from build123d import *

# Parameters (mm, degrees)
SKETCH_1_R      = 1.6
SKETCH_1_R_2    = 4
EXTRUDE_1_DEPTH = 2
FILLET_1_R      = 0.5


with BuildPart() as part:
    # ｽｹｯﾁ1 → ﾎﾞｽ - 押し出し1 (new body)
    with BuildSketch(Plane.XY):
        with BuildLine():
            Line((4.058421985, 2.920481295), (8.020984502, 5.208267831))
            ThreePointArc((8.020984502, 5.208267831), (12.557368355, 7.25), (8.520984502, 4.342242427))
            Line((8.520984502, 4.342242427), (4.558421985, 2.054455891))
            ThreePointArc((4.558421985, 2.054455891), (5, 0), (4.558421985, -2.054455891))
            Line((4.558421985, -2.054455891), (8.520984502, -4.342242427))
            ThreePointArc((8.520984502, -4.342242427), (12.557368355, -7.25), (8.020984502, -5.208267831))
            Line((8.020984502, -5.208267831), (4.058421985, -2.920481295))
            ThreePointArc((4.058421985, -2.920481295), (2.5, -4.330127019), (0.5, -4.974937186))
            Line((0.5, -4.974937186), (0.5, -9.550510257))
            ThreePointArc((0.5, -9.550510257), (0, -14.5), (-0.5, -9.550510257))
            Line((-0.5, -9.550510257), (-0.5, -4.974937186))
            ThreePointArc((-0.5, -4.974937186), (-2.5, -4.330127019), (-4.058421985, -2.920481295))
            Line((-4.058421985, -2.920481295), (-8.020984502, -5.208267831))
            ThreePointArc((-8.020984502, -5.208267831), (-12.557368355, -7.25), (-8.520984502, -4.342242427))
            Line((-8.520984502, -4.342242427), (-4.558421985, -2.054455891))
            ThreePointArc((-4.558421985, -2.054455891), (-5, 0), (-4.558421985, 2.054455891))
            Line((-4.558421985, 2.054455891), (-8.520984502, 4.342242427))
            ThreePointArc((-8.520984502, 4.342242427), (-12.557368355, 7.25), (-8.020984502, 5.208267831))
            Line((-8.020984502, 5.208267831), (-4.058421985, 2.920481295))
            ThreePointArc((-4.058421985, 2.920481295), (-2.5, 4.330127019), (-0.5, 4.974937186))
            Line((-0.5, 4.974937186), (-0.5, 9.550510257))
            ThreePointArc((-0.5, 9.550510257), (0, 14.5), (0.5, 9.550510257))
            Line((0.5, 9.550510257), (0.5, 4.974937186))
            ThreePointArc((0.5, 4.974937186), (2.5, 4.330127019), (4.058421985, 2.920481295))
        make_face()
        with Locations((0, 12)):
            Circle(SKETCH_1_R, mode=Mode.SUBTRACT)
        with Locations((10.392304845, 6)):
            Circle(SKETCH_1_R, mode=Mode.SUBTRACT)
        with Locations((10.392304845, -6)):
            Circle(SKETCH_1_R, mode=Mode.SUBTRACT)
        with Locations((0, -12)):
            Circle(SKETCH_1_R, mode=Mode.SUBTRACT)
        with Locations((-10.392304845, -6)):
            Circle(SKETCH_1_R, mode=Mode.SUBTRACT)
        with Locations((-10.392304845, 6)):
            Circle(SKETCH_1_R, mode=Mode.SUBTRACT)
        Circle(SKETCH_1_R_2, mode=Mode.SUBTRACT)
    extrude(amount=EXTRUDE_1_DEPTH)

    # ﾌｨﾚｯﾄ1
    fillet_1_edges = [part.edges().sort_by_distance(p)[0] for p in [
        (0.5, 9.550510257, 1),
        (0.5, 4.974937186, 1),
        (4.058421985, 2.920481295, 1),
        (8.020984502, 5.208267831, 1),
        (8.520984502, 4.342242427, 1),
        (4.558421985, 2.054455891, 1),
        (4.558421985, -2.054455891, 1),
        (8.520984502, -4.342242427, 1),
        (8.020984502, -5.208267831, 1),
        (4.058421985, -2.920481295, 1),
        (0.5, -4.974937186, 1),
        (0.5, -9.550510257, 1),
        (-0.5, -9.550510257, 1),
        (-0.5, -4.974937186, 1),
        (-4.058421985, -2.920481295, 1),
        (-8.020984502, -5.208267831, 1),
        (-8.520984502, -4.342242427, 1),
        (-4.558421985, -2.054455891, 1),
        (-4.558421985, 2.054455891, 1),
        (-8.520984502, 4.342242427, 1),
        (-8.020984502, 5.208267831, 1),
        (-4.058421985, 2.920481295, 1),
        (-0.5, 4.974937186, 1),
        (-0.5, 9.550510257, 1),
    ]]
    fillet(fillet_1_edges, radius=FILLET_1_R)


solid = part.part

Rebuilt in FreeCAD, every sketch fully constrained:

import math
import FreeCAD as App
import Part
import Sketcher
Q = App.Units.Quantity


def edges_at(feature, points):
    """Names of the edges that pass closest to the given points."""
    edges = feature.Shape.Edges
    near = lambda p: min(range(len(edges)), key=lambda i: edges[i].distToShape(Part.Vertex(*p))[0])
    return sorted({f"Edge{near(p) + 1}" for p in points})

doc = App.newDocument("Part")
body = doc.addObject("PartDesign::Body", "Body")

sketch1 = doc.addObject("Sketcher::SketchObject", "Sketch")
body.addObject(sketch1)
sketch1.AttachmentSupport = (doc.XY_Plane, [""])
sketch1.MapMode = "FlatFace"
sketch1.addGeometry(Part.LineSegment(App.Vector(8.020985, 5.208268, 0), App.Vector(4.058422, 2.920481, 0)), False)
sketch1.addGeometry(Part.ArcOfCircle(Part.Circle(App.Vector(0, 0, 0), App.Vector(0, 0, 1), 5), math.radians(35.73917), math.radians(84.26083)), False)
sketch1.addGeometry(Part.LineSegment(App.Vector(0.5, 4.974937, 0), App.Vector(0.5, 9.55051, 0)), False)
sketch1.addGeometry(Part.ArcOfCircle(Part.Circle(App.Vector(0, 12, 0), App.Vector(0, 0, 1), 2.5), math.radians(-78.463041), math.radians(258.463041)), False)
sketch1.addGeometry(Part.LineSegment(App.Vector(-0.5, 9.55051, 0), App.Vector(-0.5, 4.974937, 0)), False)
sketch1.addGeometry(Part.ArcOfCircle(Part.Circle(App.Vector(0, 0, 0), App.Vector(0, 0, 1), 5), math.radians(95.73917), math.radians(144.26083)), False)
sketch1.addGeometry(Part.LineSegment(App.Vector(-4.058422, 2.920481, 0), App.Vector(-8.020985, 5.208268, 0)), False)
sketch1.addGeometry(Part.ArcOfCircle(Part.Circle(App.Vector(-10.392305, 6, 0), App.Vector(0, 0, 1), 2.5), math.radians(-18.463041), math.radians(318.463041)), False)
sketch1.addGeometry(Part.LineSegment(App.Vector(-8.520985, 4.342242, 0), App.Vector(-4.558422, 2.054456, 0)), False)
sketch1.addGeometry(Part.ArcOfCircle(Part.Circle(App.Vector(0, 0, 0), App.Vector(0, 0, 1), 5), math.radians(155.73917), math.radians(204.26083)), False)
sketch1.addGeometry(Part.LineSegment(App.Vector(-4.558422, -2.054456, 0), App.Vector(-8.520985, -4.342242, 0)), False)
sketch1.addGeometry(Part.ArcOfCircle(Part.Circle(App.Vector(-10.392305, -6, 0), App.Vector(0, 0, 1), 2.5), math.radians(41.536959), math.radians(378.463041)), False)
sketch1.addGeometry(Part.LineSegment(App.Vector(-8.020985, -5.208268, 0), App.Vector(-4.058422, -2.920481, 0)), False)
sketch1.addGeometry(Part.ArcOfCircle(Part.Circle(App.Vector(0, 0, 0), App.Vector(0, 0, 1), 5), math.radians(-144.26083), math.radians(-95.73917)), False)
sketch1.addGeometry(Part.LineSegment(App.Vector(-0.5, -4.974937, 0), App.Vector(-0.5, -9.55051, 0)), False)
sketch1.addGeometry(Part.ArcOfCircle(Part.Circle(App.Vector(0, -12, 0), App.Vector(0, 0, 1), 2.5), math.radians(101.536959), math.radians(438.463041)), False)
sketch1.addGeometry(Part.LineSegment(App.Vector(0.5, -9.55051, 0), App.Vector(0.5, -4.974937, 0)), False)
sketch1.addGeometry(Part.ArcOfCircle(Part.Circle(App.Vector(0, 0, 0), App.Vector(0, 0, 1), 5), math.radians(-84.26083), math.radians(-35.73917)), False)
sketch1.addGeometry(Part.LineSegment(App.Vector(4.058422, -2.920481, 0), App.Vector(8.020985, -5.208268, 0)), False)
sketch1.addGeometry(Part.ArcOfCircle(Part.Circle(App.Vector(10.392305, -6, 0), App.Vector(0, 0, 1), 2.5), math.radians(161.536959), math.radians(498.463041)), False)
sketch1.addGeometry(Part.LineSegment(App.Vector(8.520985, -4.342242, 0), App.Vector(4.558422, -2.054456, 0)), False)
sketch1.addGeometry(Part.ArcOfCircle(Part.Circle(App.Vector(0, 0, 0), App.Vector(0, 0, 1), 5), math.radians(-24.26083), math.radians(24.26083)), False)
sketch1.addGeometry(Part.LineSegment(App.Vector(4.558422, 2.054456, 0), App.Vector(8.520985, 4.342242, 0)), False)
sketch1.addGeometry(Part.ArcOfCircle(Part.Circle(App.Vector(10.392305, 6, 0), App.Vector(0, 0, 1), 2.5), math.radians(-138.463041), math.radians(198.463041)), False)
sketch1.addGeometry(Part.Circle(App.Vector(10.392305, -6, 0), App.Vector(0, 0, 1), 1.6), False)
sketch1.addGeometry(Part.Circle(App.Vector(0, -12, 0), App.Vector(0, 0, 1), 1.6), False)
sketch1.addGeometry(Part.Circle(App.Vector(-10.392305, -6, 0), App.Vector(0, 0, 1), 1.6), False)
sketch1.addGeometry(Part.Circle(App.Vector(10.392305, 6, 0), App.Vector(0, 0, 1), 1.6), False)
sketch1.addGeometry(Part.Circle(App.Vector(0, 0, 0), App.Vector(0, 0, 1), 4), False)
sketch1.addGeometry(Part.Circle(App.Vector(-10.392305, 6, 0), App.Vector(0, 0, 1), 1.6), False)
sketch1.addGeometry(Part.Circle(App.Vector(0, 12, 0), App.Vector(0, 0, 1), 1.6), False)
sketch1.addConstraint(Sketcher.Constraint("Coincident", 0, 2, 1, 1))
sketch1.addConstraint(Sketcher.Constraint("Coincident", 1, 2, 2, 1))
sketch1.addConstraint(Sketcher.Constraint("Coincident", 2, 2, 3, 1))
sketch1.addConstraint(Sketcher.Constraint("Coincident", 3, 2, 4, 1))
sketch1.addConstraint(Sketcher.Constraint("Coincident", 4, 2, 5, 1))
sketch1.addConstraint(Sketcher.Constraint("Coincident", 5, 2, 6, 1))
sketch1.addConstraint(Sketcher.Constraint("Coincident", 6, 2, 7, 1))
sketch1.addConstraint(Sketcher.Constraint("Coincident", 7, 2, 8, 1))
sketch1.addConstraint(Sketcher.Constraint("Coincident", 8, 2, 9, 1))
sketch1.addConstraint(Sketcher.Constraint("Coincident", 9, 2, 10, 1))
sketch1.addConstraint(Sketcher.Constraint("Coincident", 10, 2, 11, 1))
sketch1.addConstraint(Sketcher.Constraint("Coincident", 11, 2, 12, 1))
sketch1.addConstraint(Sketcher.Constraint("Coincident", 12, 2, 13, 1))
sketch1.addConstraint(Sketcher.Constraint("Coincident", 13, 2, 14, 1))
sketch1.addConstraint(Sketcher.Constraint("Coincident", 14, 2, 15, 1))
sketch1.addConstraint(Sketcher.Constraint("Coincident", 15, 2, 16, 1))
sketch1.addConstraint(Sketcher.Constraint("Coincident", 16, 2, 17, 1))
sketch1.addConstraint(Sketcher.Constraint("Coincident", 17, 2, 18, 1))
sketch1.addConstraint(Sketcher.Constraint("Coincident", 18, 2, 19, 1))
sketch1.addConstraint(Sketcher.Constraint("Coincident", 19, 2, 20, 1))
sketch1.addConstraint(Sketcher.Constraint("Coincident", 20, 2, 21, 1))
sketch1.addConstraint(Sketcher.Constraint("Coincident", 21, 2, 22, 1))
sketch1.addConstraint(Sketcher.Constraint("Coincident", 22, 2, 23, 1))
sketch1.addConstraint(Sketcher.Constraint("Coincident", 23, 2, 0, 1))
sketch1.addConstraint(Sketcher.Constraint("Vertical", 2))
sketch1.addConstraint(Sketcher.Constraint("Vertical", 4))
sketch1.addConstraint(Sketcher.Constraint("Vertical", 14))
sketch1.addConstraint(Sketcher.Constraint("Vertical", 16))
sketch1.addConstraint(Sketcher.Constraint("Coincident", 1, 3, -1, 1))
sketch1.addConstraint(Sketcher.Constraint("Coincident", 5, 3, -1, 1))
sketch1.addConstraint(Sketcher.Constraint("Coincident", 9, 3, -1, 1))
sketch1.addConstraint(Sketcher.Constraint("Coincident", 13, 3, -1, 1))
sketch1.addConstraint(Sketcher.Constraint("Coincident", 17, 3, -1, 1))
sketch1.addConstraint(Sketcher.Constraint("Coincident", 21, 3, -1, 1))
sketch1.addConstraint(Sketcher.Constraint("Coincident", 28, 3, -1, 1))
sketch1.addConstraint(Sketcher.Constraint("Coincident", 24, 3, 19, 3))
sketch1.addConstraint(Sketcher.Constraint("Coincident", 25, 3, 15, 3))
sketch1.addConstraint(Sketcher.Constraint("Coincident", 26, 3, 11, 3))
sketch1.addConstraint(Sketcher.Constraint("Coincident", 27, 3, 23, 3))
sketch1.addConstraint(Sketcher.Constraint("Coincident", 29, 3, 7, 3))
sketch1.addConstraint(Sketcher.Constraint("Coincident", 30, 3, 3, 3))
sketch1.addConstraint(Sketcher.Constraint("Equal", 1, 5))
sketch1.addConstraint(Sketcher.Constraint("Equal", 3, 7))
sketch1.addConstraint(Sketcher.Constraint("Equal", 5, 9))
sketch1.addConstraint(Sketcher.Constraint("Equal", 7, 11))
sketch1.addConstraint(Sketcher.Constraint("Equal", 9, 13))
sketch1.addConstraint(Sketcher.Constraint("Equal", 11, 15))
sketch1.addConstraint(Sketcher.Constraint("Equal", 13, 17))
sketch1.addConstraint(Sketcher.Constraint("Equal", 15, 19))
sketch1.addConstraint(Sketcher.Constraint("Equal", 17, 21))
sketch1.addConstraint(Sketcher.Constraint("Equal", 19, 23))
sketch1.addConstraint(Sketcher.Constraint("Equal", 24, 25))
sketch1.addConstraint(Sketcher.Constraint("Equal", 25, 26))
sketch1.addConstraint(Sketcher.Constraint("Equal", 26, 27))
sketch1.addConstraint(Sketcher.Constraint("Equal", 27, 29))
sketch1.addConstraint(Sketcher.Constraint("Equal", 29, 30))
sketch1.addConstraint(Sketcher.Constraint("Symmetric", 3, 3, 15, 3, -1, 1))
sketch1.addConstraint(Sketcher.Constraint("Symmetric", 7, 3, 19, 3, -1, 1))
sketch1.addConstraint(Sketcher.Constraint("Symmetric", 11, 3, 23, 3, -1, 1))
sketch1.addConstraint(Sketcher.Constraint("Symmetric", 11, 3, 19, 3, -2))
sketch1.addConstraint(Sketcher.Constraint("Symmetric", 2, 2, 3, 2, -2))
sketch1.addConstraint(Sketcher.Constraint("Parallel", 6, 8))
sketch1.addConstraint(Sketcher.Constraint("Parallel", 0, 10))
sketch1.addConstraint(Sketcher.Constraint("Parallel", 10, 12))
sketch1.addConstraint(Sketcher.Constraint("Parallel", 8, 18))
sketch1.addConstraint(Sketcher.Constraint("Parallel", 18, 20))
sketch1.addConstraint(Sketcher.Constraint("Parallel", 12, 22))
sketch1.addConstraint(Sketcher.Constraint("Horizontal", 0, 2, 5, 2))
sketch1.addConstraint(Sketcher.Constraint("Horizontal", 14, 2, 15, 2))
sketch1.addConstraint(Sketcher.Constraint("Horizontal", 12, 2, 17, 2))
sketch1.addConstraint(Sketcher.Constraint("Horizontal", 11, 2, 18, 2))
sketch1.addConstraint(Sketcher.Constraint("Horizontal", 10, 2, 19, 2))
sketch1.addConstraint(Sketcher.Constraint("Horizontal", 8, 2, 21, 2))
sketch1.addConstraint(Sketcher.Constraint("Vertical", 8, 2, 9, 2))
sketch1.addConstraint(Sketcher.Constraint("Vertical", 6, 2, 11, 2))
sketch1.addConstraint(Sketcher.Constraint("Vertical", 4, 2, 13, 2))
sketch1.addConstraint(Sketcher.Constraint("Equal", 6, 8))
sketch1.addConstraint(Sketcher.Constraint("Diameter", 28, Q("8 mm")))
sketch1.addConstraint(Sketcher.Constraint("Radius", 1, Q("5 mm")))
sketch1.addConstraint(Sketcher.Constraint("Diameter", 24, Q("3.2 mm")))
sketch1.addConstraint(Sketcher.Constraint("Radius", 3, Q("2.5 mm")))
sketch1.addConstraint(Sketcher.Constraint("Angle", 0, Q("-150 deg")))
sketch1.addConstraint(Sketcher.Constraint("DistanceY", -1, 1, 3, 3, Q("12 mm")))
sketch1.addConstraint(Sketcher.Constraint("DistanceY", -1, 1, 7, 3, Q("6 mm")))
sketch1.addConstraint(Sketcher.Constraint("DistanceX", 3, 2, 2, 2, Q("1 mm")))
sketch1.addConstraint(Sketcher.Constraint("DistanceX", 7, 2, 6, 2, Q("0.5 mm")))
sketch1.addConstraint(Sketcher.Constraint("DistanceY", 10, 2, 8, 2, Q("6.396698 mm")))
pad1 = doc.addObject("PartDesign::Pad", "Pad")
body.addObject(pad1)
pad1.Profile = sketch1
pad1.Length = 2
doc.recompute()

fillet = doc.addObject("PartDesign::Fillet", "Fillet")
body.addObject(fillet)
fillet.Base = (pad1, edges_at(pad1, [
    (0.5, 9.551, 1),
    (0.5, 4.975, 1),
    (4.058, 2.92, 1),
    (8.021, 5.208, 1),
    (8.521, 4.342, 1),
    (4.558, 2.054, 1),
    (4.558, -2.054, 1),
    (8.521, -4.342, 1),
    (8.021, -5.208, 1),
    (4.058, -2.92, 1),
    (0.5, -4.975, 1),
    (0.5, -9.551, 1),
    (-0.5, -9.551, 1),
    (-0.5, -4.975, 1),
    (-4.058, -2.92, 1),
    (-8.021, -5.208, 1),
    (-8.521, -4.342, 1),
    (-4.558, -2.054, 1),
    (-4.558, 2.054, 1),
    (-8.521, 4.342, 1),
    (-8.021, 5.208, 1),
    (-4.058, 2.92, 1),
    (-0.5, 4.975, 1),
    (-0.5, 9.551, 1),
]))
fillet.Radius = 0.5

doc.recompute()
